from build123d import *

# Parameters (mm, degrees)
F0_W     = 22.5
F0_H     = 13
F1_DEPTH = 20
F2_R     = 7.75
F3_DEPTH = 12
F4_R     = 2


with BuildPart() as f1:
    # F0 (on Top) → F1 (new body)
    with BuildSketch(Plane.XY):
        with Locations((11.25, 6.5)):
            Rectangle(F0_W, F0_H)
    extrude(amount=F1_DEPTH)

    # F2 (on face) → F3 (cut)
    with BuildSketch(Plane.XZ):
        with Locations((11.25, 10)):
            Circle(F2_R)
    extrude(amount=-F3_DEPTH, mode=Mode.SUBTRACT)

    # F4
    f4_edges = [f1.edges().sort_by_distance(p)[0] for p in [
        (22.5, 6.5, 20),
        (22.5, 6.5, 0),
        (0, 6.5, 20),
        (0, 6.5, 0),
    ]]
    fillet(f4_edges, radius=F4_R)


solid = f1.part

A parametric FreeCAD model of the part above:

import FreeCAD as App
import Part
import Sketcher
from FreeCAD import Vector
Q = App.Units.Quantity


def edges_at(feature, points):
    """Names of the edges that pass closest to the given points."""
    edges = feature.Shape.Edges
    near = lambda p: min(range(len(edges)), key=lambda i: edges[i].distToShape(Part.Vertex(*p))[0])
    return sorted({f"Edge{near(p) + 1}" for p in points})


def add_polygon(sketch, points):
    """Adds a closed chain of lines whose ends are joined by coincident constraints."""
    first, n = sketch.GeometryCount, len(points)
    for a, b in zip(points, points[1:] + points[:1]):
        sketch.addGeometry(Part.LineSegment(App.Vector(*a, 0), App.Vector(*b, 0)), False)
    for i in range(n):
        sketch.addConstraint(Sketcher.Constraint("Coincident", first + i, 2, first + (i + 1) % n, 1))

doc = App.newDocument("Part")
body = doc.addObject("PartDesign::Body", "Body")

# Sketch on XY plane
sketch1 = body.newObject("Sketcher::SketchObject", "Sketch")
sketch1.AttachmentSupport = (doc.getObject("XY_Plane"), [""])
sketch1.MapMode = "FlatFace"
add_polygon(sketch1, [(0, 13), (0, 0), (22, 0), (22, 13)])  # lines 0-3
sketch1.addConstraint(Sketcher.Constraint("Vertical", 0))
sketch1.addConstraint(Sketcher.Constraint("Horizontal", 1))
sketch1.addConstraint(Sketcher.Constraint("Vertical", 2))
sketch1.addConstraint(Sketcher.Constraint("Horizontal", 3))
sketch1.addConstraint(Sketcher.Constraint("Coincident", 0, 2, -1, 1))
sketch1.addConstraint(Sketcher.Constraint("DistanceY", 0, 2, 0, 1, Q("13 mm")))
sketch1.addConstraint(Sketcher.Constraint("DistanceX", 1, 1, 1, 2, Q("22.5 mm")))
pad1 = body.newObject("PartDesign::Pad", "Pad")
pad1.Profile = sketch1
pad1.Length = 20

# Sketch on XZ plane
sketch2 = body.newObject("Sketcher::SketchObject", "Sketch001")
sketch2.AttachmentSupport = (doc.getObject("XZ_Plane"), [""])
sketch2.MapMode = "FlatFace"
sketch2.addGeometry(Part.Circle(Vector(11, 10, 0), Vector(0, 0, 1), 8), False)
sketch2.addConstraint(Sketcher.Constraint("Diameter", 0, Q("15.5 mm")))
sketch2.addConstraint(Sketcher.Constraint("DistanceY", -1, 1, 0, 3, Q("10 mm")))
sketch2.addConstraint(Sketcher.Constraint("DistanceX", -1, 1, 0, 3, Q("11.25 mm")))
pocket1 = body.newObject("PartDesign::Pocket", "Pocket")
pocket1.Profile = sketch2
pocket1.Length = 12
doc.recompute()

fillet = body.newObject("PartDesign::Fillet", "Fillet")
fillet.Base = (pocket1, edges_at(pocket1, [
    (22.5, 6.5, 20),
    (22.5, 6.5, 0),
    (0, 6.5, 20),
    (0, 6.5, 0),
]))
fillet.Radius = 2

doc.recompute()
